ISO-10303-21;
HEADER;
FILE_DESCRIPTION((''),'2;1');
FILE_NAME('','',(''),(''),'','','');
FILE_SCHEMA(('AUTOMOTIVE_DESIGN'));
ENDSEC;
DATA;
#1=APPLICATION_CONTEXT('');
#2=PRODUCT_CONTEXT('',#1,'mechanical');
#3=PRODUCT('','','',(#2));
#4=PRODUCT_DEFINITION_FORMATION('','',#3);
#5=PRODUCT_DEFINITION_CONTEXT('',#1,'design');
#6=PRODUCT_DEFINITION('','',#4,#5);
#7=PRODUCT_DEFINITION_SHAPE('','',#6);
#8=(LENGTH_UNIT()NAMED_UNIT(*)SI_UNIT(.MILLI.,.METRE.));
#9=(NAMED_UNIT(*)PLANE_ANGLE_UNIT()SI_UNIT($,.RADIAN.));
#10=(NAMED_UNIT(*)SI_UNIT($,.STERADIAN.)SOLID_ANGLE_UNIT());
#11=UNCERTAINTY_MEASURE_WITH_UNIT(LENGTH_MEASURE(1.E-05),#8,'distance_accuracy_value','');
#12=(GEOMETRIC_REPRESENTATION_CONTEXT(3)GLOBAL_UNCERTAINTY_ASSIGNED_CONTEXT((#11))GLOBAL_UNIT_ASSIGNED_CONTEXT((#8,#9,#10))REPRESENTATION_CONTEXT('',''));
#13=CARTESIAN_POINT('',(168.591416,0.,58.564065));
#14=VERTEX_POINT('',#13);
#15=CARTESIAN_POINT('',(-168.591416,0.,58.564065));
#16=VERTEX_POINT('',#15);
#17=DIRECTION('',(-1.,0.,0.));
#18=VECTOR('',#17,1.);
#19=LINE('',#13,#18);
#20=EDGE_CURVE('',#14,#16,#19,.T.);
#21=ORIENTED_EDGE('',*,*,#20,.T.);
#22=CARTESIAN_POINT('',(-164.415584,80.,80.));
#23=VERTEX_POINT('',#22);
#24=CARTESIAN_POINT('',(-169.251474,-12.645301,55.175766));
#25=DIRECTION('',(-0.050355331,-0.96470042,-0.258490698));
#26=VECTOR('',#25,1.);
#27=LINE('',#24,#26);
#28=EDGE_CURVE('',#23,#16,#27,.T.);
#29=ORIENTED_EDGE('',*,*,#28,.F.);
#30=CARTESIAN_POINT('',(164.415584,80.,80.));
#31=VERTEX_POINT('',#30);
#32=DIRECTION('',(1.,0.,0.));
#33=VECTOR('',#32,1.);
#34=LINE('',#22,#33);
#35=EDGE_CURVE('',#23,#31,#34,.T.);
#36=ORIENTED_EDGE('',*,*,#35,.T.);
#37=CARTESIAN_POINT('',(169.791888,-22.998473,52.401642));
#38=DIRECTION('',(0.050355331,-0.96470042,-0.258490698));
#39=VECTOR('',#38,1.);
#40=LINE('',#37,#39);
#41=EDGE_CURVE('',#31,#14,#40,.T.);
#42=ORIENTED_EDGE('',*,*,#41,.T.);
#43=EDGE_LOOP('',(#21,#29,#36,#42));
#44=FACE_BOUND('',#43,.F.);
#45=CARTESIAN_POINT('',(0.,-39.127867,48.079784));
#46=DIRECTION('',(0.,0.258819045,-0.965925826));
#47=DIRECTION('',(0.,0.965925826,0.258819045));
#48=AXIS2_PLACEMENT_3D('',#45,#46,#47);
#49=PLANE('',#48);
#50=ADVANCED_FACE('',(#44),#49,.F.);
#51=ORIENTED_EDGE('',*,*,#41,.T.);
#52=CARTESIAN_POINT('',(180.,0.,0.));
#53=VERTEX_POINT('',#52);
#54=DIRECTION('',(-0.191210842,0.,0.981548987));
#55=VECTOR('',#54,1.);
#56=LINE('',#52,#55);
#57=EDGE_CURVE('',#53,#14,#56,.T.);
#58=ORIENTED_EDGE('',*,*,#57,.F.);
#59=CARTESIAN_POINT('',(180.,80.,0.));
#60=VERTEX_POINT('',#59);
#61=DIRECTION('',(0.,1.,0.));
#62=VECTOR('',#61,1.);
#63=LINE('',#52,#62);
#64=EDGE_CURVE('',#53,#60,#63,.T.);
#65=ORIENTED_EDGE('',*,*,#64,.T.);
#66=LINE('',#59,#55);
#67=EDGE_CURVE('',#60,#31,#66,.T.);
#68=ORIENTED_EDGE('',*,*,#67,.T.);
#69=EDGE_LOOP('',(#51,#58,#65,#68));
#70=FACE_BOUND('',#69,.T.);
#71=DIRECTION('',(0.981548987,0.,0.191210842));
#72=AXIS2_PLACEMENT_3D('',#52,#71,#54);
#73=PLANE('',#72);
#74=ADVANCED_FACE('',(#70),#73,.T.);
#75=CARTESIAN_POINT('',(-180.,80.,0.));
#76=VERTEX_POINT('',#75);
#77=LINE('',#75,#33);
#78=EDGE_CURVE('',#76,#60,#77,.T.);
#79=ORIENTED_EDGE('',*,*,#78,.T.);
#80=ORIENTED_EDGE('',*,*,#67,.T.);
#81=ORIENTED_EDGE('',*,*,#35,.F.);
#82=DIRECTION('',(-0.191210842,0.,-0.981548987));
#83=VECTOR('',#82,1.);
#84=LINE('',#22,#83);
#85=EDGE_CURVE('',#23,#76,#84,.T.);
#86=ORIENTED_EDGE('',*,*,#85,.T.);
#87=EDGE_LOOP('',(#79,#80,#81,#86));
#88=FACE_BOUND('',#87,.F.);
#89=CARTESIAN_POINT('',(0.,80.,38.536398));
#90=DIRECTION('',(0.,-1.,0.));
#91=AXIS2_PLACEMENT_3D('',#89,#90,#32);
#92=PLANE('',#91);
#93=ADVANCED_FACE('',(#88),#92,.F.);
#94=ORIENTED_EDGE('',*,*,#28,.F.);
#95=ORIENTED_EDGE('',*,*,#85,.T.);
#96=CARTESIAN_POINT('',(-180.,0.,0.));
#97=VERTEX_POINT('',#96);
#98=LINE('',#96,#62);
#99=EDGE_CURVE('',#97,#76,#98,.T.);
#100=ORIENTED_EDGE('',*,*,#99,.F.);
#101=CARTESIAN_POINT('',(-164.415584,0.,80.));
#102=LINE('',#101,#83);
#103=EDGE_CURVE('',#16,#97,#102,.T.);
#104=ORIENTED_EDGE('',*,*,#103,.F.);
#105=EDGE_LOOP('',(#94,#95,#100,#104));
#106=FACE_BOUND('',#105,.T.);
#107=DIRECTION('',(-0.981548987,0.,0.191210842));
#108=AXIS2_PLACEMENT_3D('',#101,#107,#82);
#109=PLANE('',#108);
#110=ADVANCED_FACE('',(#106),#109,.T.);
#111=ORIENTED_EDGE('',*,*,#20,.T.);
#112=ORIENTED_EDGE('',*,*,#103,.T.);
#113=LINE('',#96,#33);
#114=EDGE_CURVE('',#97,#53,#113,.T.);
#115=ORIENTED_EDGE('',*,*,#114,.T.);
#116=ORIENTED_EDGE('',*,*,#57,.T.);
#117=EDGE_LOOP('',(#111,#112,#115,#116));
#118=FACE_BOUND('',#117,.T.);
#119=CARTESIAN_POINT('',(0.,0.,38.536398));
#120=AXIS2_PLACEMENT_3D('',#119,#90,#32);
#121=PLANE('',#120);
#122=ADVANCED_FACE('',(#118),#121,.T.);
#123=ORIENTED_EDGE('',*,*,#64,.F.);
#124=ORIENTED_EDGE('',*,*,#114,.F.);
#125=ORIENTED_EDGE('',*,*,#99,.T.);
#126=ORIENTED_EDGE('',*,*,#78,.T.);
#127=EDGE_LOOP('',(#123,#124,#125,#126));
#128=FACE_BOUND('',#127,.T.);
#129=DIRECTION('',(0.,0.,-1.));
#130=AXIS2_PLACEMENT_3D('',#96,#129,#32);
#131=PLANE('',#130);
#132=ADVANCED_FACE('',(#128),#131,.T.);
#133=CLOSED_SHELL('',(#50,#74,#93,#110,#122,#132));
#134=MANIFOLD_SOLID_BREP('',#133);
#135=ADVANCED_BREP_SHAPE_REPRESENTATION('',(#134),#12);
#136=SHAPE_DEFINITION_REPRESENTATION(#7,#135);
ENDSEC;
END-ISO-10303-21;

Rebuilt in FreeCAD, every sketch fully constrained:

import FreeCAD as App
import Part
import Sketcher
from FreeCAD import Vector
Q = App.Units.Quantity


def add_polygon(sketch, points):
    """Adds a closed chain of lines whose ends are joined by coincident constraints."""
    first, n = sketch.GeometryCount, len(points)
    for a, b in zip(points, points[1:] + points[:1]):
        sketch.addGeometry(Part.LineSegment(App.Vector(*a, 0), App.Vector(*b, 0)), False)
    for i in range(n):
        sketch.addConstraint(Sketcher.Constraint("Coincident", first + i, 2, first + (i + 1) % n, 1))

doc = App.newDocument("Part")
params = doc.addObject("Spreadsheet::Sheet", "Params")
for row, (alias, value) in enumerate([
    ("sketch1_width", "360 mm"),
    ("pad1_length", "80 mm"),
], start=1):
    params.set(f"A{row}", alias)
    params.set(f"B{row}", "=" + value)
    params.setAlias(f"B{row}", alias)

body = doc.addObject("PartDesign::Body", "Body")

# Sketch on XZ plane
sketch1 = doc.addObject("Sketcher::SketchObject", "Sketch")
body.addObject(sketch1)
sketch1.AttachmentSupport = (doc.XZ_Plane, [""])
sketch1.MapMode = "FlatFace"
add_polygon(sketch1, [(-180, 0), (180, 0), (164, 80), (-164, 80)])  # lines 0-3
sketch1.addConstraint(Sketcher.Constraint("Horizontal", 0))
sketch1.addConstraint(Sketcher.Constraint("Horizontal", 2))
sketch1.addConstraint(Sketcher.Constraint("Symmetric", 0, 2, 3, 2, -1, 1))
sketch1.addConstraint(Sketcher.Constraint("Equal", 1, 3))
sketch1.addConstraint(Sketcher.Constraint("DistanceX", 0, 1, 0, 2, Q("360 mm")))
sketch1.addConstraint(Sketcher.Constraint("DistanceY", -1, 1, 1, 2, Q("80 mm")))
sketch1.addConstraint(Sketcher.Constraint("DistanceX", 2, 2, 2, 1, Q("328.831169 mm")))
sketch1.setExpression("Constraints[8]", "Params.sketch1_width")
pad1 = doc.addObject("PartDesign::Pad", "Pad")
body.addObject(pad1)
pad1.Profile = sketch1
pad1.setExpression("Length", "Params.pad1_length")
pad1.Reversed = True

# Sketch on YZ plane
sketch2 = doc.addObject("Sketcher::SketchObject", "Sketch001")
body.addObject(sketch2)
sketch2.AttachmentSupport = (doc.YZ_Plane, [""])
sketch2.MapMode = "FlatFace"
add_polygon(sketch2, [(-39, 48), (80, 80), (-39, 80)])  # lines 0-2
sketch2.addConstraint(Sketcher.Constraint("Horizontal", 1))
sketch2.addConstraint(Sketcher.Constraint("Vertical", 2))
sketch2.addConstraint(Sketcher.Constraint("Angle", 0, Q("15 deg")))
sketch2.addConstraint(Sketcher.Constraint("DistanceX", -1, 1, 0, 2, Q("80 mm")))
sketch2.addConstraint(Sketcher.Constraint("DistanceY", -1, 1, 0, 2, Q("80 mm")))
sketch2.addConstraint(Sketcher.Constraint("DistanceX", 1, 2, 1, 1, Q("119.127867 mm")))
pocket1 = doc.addObject("PartDesign::Pocket", "Pocket")
body.addObject(pocket1)
pocket1.Profile = sketch2
pocket1.Type = "ThroughAll"
pocket1.Midplane = True

doc.recompute()
